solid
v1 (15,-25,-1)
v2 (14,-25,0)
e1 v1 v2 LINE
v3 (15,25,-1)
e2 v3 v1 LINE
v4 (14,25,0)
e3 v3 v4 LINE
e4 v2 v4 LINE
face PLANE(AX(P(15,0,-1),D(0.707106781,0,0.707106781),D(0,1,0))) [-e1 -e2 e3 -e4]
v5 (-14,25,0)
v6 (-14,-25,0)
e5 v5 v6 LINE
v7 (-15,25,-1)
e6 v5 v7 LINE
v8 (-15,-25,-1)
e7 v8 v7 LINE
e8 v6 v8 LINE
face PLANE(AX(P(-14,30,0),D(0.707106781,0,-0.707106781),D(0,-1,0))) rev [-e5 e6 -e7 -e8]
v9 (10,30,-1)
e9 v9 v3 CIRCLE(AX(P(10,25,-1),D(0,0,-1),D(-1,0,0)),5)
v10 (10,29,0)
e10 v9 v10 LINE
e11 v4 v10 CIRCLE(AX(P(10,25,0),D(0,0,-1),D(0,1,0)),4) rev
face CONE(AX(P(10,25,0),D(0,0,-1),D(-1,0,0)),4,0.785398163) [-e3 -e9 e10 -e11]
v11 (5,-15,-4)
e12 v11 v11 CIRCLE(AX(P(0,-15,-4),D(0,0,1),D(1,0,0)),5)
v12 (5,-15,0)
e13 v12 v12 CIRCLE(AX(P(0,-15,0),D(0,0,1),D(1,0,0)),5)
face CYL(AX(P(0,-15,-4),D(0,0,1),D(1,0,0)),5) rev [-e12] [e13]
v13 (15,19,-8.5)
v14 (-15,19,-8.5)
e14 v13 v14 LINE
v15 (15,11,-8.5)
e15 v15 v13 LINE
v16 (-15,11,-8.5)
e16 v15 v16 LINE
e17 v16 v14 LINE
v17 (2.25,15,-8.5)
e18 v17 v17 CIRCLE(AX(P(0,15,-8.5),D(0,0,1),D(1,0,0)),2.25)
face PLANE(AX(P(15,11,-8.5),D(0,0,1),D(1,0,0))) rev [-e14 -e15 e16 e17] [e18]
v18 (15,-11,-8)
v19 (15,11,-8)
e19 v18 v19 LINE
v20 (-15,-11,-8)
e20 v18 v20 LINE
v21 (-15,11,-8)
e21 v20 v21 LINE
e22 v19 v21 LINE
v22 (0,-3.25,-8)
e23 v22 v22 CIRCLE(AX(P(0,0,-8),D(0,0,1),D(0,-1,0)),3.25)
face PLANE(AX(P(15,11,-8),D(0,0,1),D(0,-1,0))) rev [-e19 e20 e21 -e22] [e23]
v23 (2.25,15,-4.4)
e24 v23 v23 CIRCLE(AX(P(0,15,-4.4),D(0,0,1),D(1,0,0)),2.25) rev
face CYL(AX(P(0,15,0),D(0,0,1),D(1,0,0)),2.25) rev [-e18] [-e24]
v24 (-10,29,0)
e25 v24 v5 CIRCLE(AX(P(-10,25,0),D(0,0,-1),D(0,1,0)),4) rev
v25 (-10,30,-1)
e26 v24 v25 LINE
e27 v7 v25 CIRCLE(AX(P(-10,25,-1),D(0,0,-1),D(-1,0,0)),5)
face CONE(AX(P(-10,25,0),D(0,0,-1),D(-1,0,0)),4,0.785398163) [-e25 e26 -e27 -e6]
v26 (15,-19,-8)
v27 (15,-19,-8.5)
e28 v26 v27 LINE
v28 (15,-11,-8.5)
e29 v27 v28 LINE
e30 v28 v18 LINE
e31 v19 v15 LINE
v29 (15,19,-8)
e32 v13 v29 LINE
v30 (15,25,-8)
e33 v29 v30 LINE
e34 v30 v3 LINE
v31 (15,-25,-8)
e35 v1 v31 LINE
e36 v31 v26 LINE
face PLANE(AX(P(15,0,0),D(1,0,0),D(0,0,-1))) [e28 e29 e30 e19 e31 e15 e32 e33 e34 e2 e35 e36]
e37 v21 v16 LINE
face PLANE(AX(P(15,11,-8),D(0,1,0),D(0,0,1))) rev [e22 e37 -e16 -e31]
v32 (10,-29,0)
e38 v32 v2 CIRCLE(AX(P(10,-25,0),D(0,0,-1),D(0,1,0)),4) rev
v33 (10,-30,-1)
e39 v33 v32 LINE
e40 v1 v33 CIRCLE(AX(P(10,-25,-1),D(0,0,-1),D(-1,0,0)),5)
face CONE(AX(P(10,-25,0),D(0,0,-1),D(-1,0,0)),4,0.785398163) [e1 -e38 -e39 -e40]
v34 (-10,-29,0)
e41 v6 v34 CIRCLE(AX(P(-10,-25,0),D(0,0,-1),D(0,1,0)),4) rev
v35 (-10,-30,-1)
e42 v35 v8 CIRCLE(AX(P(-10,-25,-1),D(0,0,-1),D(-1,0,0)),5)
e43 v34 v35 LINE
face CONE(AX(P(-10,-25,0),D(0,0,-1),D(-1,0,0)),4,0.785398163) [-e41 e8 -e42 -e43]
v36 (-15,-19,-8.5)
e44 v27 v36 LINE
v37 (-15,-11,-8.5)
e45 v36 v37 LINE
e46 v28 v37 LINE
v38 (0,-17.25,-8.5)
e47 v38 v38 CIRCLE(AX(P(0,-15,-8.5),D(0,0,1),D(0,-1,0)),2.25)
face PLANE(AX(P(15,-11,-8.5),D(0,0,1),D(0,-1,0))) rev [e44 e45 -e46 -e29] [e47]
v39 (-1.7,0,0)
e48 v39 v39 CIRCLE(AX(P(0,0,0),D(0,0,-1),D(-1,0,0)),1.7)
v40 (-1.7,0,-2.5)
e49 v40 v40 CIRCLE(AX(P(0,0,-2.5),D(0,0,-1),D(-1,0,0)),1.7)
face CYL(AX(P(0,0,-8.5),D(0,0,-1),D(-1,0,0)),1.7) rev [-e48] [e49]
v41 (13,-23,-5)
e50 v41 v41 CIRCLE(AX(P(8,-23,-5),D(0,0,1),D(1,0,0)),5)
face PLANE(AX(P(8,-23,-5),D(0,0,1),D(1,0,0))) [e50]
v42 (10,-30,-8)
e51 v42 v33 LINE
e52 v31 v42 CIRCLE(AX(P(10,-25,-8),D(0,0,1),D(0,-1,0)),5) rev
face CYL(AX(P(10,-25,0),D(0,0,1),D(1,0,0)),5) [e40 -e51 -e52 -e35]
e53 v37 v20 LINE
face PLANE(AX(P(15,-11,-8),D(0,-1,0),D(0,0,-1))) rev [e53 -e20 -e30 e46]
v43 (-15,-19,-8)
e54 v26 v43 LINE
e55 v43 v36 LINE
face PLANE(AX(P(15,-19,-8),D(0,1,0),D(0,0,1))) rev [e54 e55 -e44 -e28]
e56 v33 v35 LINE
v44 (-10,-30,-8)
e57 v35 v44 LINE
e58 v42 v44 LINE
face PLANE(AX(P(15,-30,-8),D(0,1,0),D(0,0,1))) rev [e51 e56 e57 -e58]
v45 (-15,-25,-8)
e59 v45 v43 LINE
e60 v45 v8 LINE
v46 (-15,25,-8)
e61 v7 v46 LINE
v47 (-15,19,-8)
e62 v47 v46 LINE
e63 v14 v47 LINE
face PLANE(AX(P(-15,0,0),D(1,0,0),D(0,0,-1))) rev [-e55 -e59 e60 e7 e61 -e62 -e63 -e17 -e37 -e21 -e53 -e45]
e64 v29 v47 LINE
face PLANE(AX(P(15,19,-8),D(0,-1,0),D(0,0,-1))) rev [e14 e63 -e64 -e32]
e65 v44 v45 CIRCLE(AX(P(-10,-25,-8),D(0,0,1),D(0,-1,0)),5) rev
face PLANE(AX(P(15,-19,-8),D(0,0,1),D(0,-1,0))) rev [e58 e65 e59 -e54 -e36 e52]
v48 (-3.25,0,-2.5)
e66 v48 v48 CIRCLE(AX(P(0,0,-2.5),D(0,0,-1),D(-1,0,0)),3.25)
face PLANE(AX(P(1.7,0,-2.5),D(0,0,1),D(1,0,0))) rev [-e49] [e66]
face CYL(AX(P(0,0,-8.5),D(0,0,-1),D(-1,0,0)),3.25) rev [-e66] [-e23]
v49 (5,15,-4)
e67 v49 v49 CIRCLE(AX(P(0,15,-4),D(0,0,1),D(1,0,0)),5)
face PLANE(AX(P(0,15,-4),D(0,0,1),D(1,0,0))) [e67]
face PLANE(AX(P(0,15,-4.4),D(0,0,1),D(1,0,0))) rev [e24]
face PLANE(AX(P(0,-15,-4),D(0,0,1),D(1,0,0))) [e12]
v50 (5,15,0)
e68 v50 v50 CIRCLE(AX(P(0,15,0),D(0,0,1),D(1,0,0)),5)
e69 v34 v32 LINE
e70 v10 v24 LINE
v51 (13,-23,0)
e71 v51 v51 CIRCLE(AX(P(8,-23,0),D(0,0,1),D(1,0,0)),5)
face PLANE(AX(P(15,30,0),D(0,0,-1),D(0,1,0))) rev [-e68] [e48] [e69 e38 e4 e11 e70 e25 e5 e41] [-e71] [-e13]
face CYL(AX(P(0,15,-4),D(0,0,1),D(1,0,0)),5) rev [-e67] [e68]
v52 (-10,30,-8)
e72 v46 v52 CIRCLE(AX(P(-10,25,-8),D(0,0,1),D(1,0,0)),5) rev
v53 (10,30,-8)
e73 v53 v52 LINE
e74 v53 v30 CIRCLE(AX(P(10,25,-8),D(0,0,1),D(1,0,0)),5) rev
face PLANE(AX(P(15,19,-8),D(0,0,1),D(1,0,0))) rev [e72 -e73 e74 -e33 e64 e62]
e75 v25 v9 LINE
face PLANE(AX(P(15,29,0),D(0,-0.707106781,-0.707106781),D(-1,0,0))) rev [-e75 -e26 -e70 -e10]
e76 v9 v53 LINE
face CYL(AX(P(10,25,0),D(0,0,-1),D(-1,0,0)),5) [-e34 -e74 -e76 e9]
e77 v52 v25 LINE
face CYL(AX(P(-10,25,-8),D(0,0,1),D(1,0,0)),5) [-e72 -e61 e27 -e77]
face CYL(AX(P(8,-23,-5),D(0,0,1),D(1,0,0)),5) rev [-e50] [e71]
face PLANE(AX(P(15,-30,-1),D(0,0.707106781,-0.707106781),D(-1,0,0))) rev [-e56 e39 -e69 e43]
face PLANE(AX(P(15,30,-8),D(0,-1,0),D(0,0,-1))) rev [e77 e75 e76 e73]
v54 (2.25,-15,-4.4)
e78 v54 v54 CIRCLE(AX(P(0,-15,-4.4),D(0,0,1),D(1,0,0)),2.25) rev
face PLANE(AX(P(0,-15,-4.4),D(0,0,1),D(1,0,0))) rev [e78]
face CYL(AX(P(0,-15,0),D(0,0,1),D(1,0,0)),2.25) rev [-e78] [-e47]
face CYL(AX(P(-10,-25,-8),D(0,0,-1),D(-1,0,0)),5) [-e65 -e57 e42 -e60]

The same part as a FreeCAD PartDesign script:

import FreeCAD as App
import Part
import Sketcher

V = App.Vector
Q = App.Units.Quantity


def edges_at(feature, points):
    """Names of the edges that pass closest to the given points."""
    edges = feature.Shape.Edges
    near = lambda p: min(range(len(edges)), key=lambda i: edges[i].distToShape(Part.Vertex(*p))[0])
    return sorted({f"Edge{near(p) + 1}" for p in points})

doc = App.newDocument("Part")
body = doc.addObject("PartDesign::Body", "Body")

# Sketch on YZ plane
sketch1 = doc.addObject("Sketcher::SketchObject", "Sketch")
body.addObject(sketch1)
sketch1.AttachmentSupport = (doc.YZ_Plane, [""])
sketch1.MapMode = "FlatFace"
sketch1.addGeometry(Part.LineSegment(V(-30, -8, 0), V(-19, -8, 0)), False)
sketch1.addGeometry(Part.LineSegment(V(-19, -8, 0), V(-19, -8.5, 0)), False)
sketch1.addGeometry(Part.LineSegment(V(-19, -8.5, 0), V(-11, -8.5, 0)), False)
sketch1.addGeometry(Part.LineSegment(V(-11, -8.5, 0), V(-11, -8, 0)), False)
sketch1.addGeometry(Part.LineSegment(V(-11, -8, 0), V(11, -8, 0)), False)
sketch1.addGeometry(Part.LineSegment(V(11, -8, 0), V(11, -8.5, 0)), False)
sketch1.addGeometry(Part.LineSegment(V(11, -8.5, 0), V(19, -8.5, 0)), False)
sketch1.addGeometry(Part.LineSegment(V(19, -8.5, 0), V(19, -8, 0)), False)
sketch1.addGeometry(Part.LineSegment(V(19, -8, 0), V(30, -8, 0)), False)
sketch1.addGeometry(Part.LineSegment(V(30, -8, 0), V(30, 0, 0)), False)
sketch1.addGeometry(Part.LineSegment(V(30, 0, 0), V(-30, 0, 0)), False)
sketch1.addGeometry(Part.LineSegment(V(-30, 0, 0), V(-30, -8, 0)), False)
sketch1.addConstraint(Sketcher.Constraint("Coincident", 0, 2, 1, 1))
sketch1.addConstraint(Sketcher.Constraint("Coincident", 1, 2, 2, 1))
sketch1.addConstraint(Sketcher.Constraint("Coincident", 2, 2, 3, 1))
sketch1.addConstraint(Sketcher.Constraint("Coincident", 3, 2, 4, 1))
sketch1.addConstraint(Sketcher.Constraint("Coincident", 4, 2, 5, 1))
sketch1.addConstraint(Sketcher.Constraint("Coincident", 5, 2, 6, 1))
sketch1.addConstraint(Sketcher.Constraint("Coincident", 6, 2, 7, 1))
sketch1.addConstraint(Sketcher.Constraint("Coincident", 7, 2, 8, 1))
sketch1.addConstraint(Sketcher.Constraint("Coincident", 8, 2, 9, 1))
sketch1.addConstraint(Sketcher.Constraint("Coincident", 9, 2, 10, 1))
sketch1.addConstraint(Sketcher.Constraint("Coincident", 10, 2, 11, 1))
sketch1.addConstraint(Sketcher.Constraint("Coincident", 11, 2, 0, 1))
sketch1.addConstraint(Sketcher.Constraint("Horizontal", 0))
sketch1.addConstraint(Sketcher.Constraint("Vertical", 1))
sketch1.addConstraint(Sketcher.Constraint("Horizontal", 2))
sketch1.addConstraint(Sketcher.Constraint("Vertical", 3))
sketch1.addConstraint(Sketcher.Constraint("Horizontal", 4))
sketch1.addConstraint(Sketcher.Constraint("Vertical", 5))
sketch1.addConstraint(Sketcher.Constraint("Horizontal", 6))
sketch1.addConstraint(Sketcher.Constraint("Vertical", 7))
sketch1.addConstraint(Sketcher.Constraint("Horizontal", 8))
sketch1.addConstraint(Sketcher.Constraint("Vertical", 9))
sketch1.addConstraint(Sketcher.Constraint("Horizontal", 10))
sketch1.addConstraint(Sketcher.Constraint("Vertical", 11))
sketch1.addConstraint(Sketcher.Constraint("Symmetric", 9, 2, 10, 2, -1, 1))
sketch1.addConstraint(Sketcher.Constraint("Symmetric", 2, 2, 5, 2, -2))
sketch1.addConstraint(Sketcher.Constraint("Symmetric", 0, 2, 7, 2, -2))
sketch1.addConstraint(Sketcher.Constraint("Horizontal", 0, 2, 3, 2))
sketch1.addConstraint(Sketcher.Constraint("Equal", 6, 9))
sketch1.addConstraint(Sketcher.Constraint("DistanceX", 0, 1, 0, 2, Q("11 mm")))
sketch1.addConstraint(Sketcher.Constraint("DistanceX", 2, 1, 2, 2, Q("8 mm")))
sketch1.addConstraint(Sketcher.Constraint("DistanceX", 4, 1, 4, 2, Q("22 mm")))
sketch1.addConstraint(Sketcher.Constraint("DistanceY", 1, 2, 1, 1, Q("0.5 mm")))
pad1 = doc.addObject("PartDesign::Pad", "Pad")
body.addObject(pad1)
pad1.Profile = sketch1
pad1.Length = 30
pad1.Midplane = True

# Sketch on XY plane
sketch2 = doc.addObject("Sketcher::SketchObject", "Sketch001")
body.addObject(sketch2)
sketch2.AttachmentSupport = (doc.XY_Plane, [""])
sketch2.MapMode = "FlatFace"
sketch2.addGeometry(Part.Circle(V(0, -15, 0), V(0, 0, 1), 2.2), False)
sketch2.addGeometry(Part.Circle(V(0, 15, 0), V(0, 0, 1), 2.2), False)
sketch2.addConstraint(Sketcher.Constraint("Equal", 0, 1))
sketch2.addConstraint(Sketcher.Constraint("Symmetric", 0, 3, 1, 3, -1, 1))
sketch2.addConstraint(Sketcher.Constraint("PointOnObject", 0, 3, -2))
sketch2.addConstraint(Sketcher.Constraint("Diameter", 0, Q("4.5 mm")))
sketch2.addConstraint(Sketcher.Constraint("DistanceY", 0, 3, -1, 1, Q("15 mm")))
doc.recompute()
hole = doc.addObject("PartDesign::Hole", "Hole")
body.addObject(hole)
hole.Profile = sketch2
hole.ThreadType = "None"
hole.Diameter = 4.5
hole.DepthType = "Dimension"
hole.Depth = 16
hole.DrillPoint = "Angled"
hole.DrillPointAngle = 118

# Sketch on XY plane
sketch3 = doc.addObject("Sketcher::SketchObject", "Sketch002")
body.addObject(sketch3)
sketch3.AttachmentSupport = (doc.XY_Plane, [""])
sketch3.MapMode = "FlatFace"
sketch3.AttachmentOffset = App.Placement(V(0, 0, -8.5), App.Rotation())
sketch3.addGeometry(Part.Circle(V(0, 0, 0), V(0, 0, 1), 1.7), False)
sketch3.addConstraint(Sketcher.Constraint("Coincident", 0, 3, -1, 1))
sketch3.addConstraint(Sketcher.Constraint("Diameter", 0, Q("3.4 mm")))
doc.recompute()
hole2 = doc.addObject("PartDesign::Hole", "Hole001")
body.addObject(hole2)
hole2.Profile = sketch3
hole2.ThreadType = "None"
hole2.Diameter = 3.4
hole2.DepthType = "ThroughAll"
hole2.HoleCutType = "Counterbore"
hole2.HoleCutDiameter = 6.5
hole2.HoleCutDepth = 6
hole2.Reversed = True
doc.recompute()

fillet = doc.addObject("PartDesign::Fillet", "Fillet")
body.addObject(fillet)
fillet.Base = (hole2, edges_at(hole2, [
    (-15, -30, -4),
    (-15, 30, -4),
    (15, 30, -4),
    (15, -30, -4),
]))
fillet.Radius = 5
doc.recompute()

chamfer = doc.addObject("PartDesign::Chamfer", "Chamfer")
body.addObject(chamfer)
chamfer.Base = (fillet, edges_at(fillet, [
    (0, 30, 0),
    (-15, 0, 0),
    (0, -30, 0),
    (15, 0, 0),
    (-13.536, -28.536, 0),
    (13.536, -28.536, 0),
    (13.536, 28.536, 0),
    (-13.536, 28.536, 0),
]))
chamfer.Size = 1

# Sketch on XY plane
sketch4 = doc.addObject("Sketcher::SketchObject", "Sketch003")
body.addObject(sketch4)
sketch4.AttachmentSupport = (doc.XY_Plane, [""])
sketch4.MapMode = "FlatFace"
sketch4.addGeometry(Part.Circle(V(8, -23, 0), V(0, 0, 1), 5), False)
sketch4.addConstraint(Sketcher.Constraint("Diameter", 0, Q("10 mm")))
sketch4.addConstraint(Sketcher.Constraint("DistanceX", -1, 1, 0, 3, Q("8 mm")))
sketch4.addConstraint(Sketcher.Constraint("DistanceY", 0, 3, -1, 1, Q("23 mm")))
pocket1 = doc.addObject("PartDesign::Pocket", "Pocket")
body.addObject(pocket1)
pocket1.Profile = sketch4
pocket1.Length = 5

# Sketch on XY plane
sketch5 = doc.addObject("Sketcher::SketchObject", "Sketch004")
body.addObject(sketch5)
sketch5.AttachmentSupport = (doc.XY_Plane, [""])
sketch5.MapMode = "FlatFace"
sketch5.addGeometry(Part.Circle(V(0, 15, 0), V(0, 0, 1), 5), False)
sketch5.addGeometry(Part.Circle(V(0, -15, 0), V(0, 0, 1), 5), False)
sketch5.addConstraint(Sketcher.Constraint("Equal", 0, 1))
sketch5.addConstraint(Sketcher.Constraint("Symmetric", 0, 3, 1, 3, -1, 1))
sketch5.addConstraint(Sketcher.Constraint("PointOnObject", 0, 3, -2))
sketch5.addConstraint(Sketcher.Constraint("Diameter", 0, Q("10 mm")))
sketch5.addConstraint(Sketcher.Constraint("DistanceY", -1, 1, 0, 3, Q("15 mm")))
pocket2 = doc.addObject("PartDesign::Pocket", "Pocket001")
body.addObject(pocket2)
pocket2.Profile = sketch5
pocket2.Length = 4

# Sketch on XY plane
sketch6 = doc.addObject("Sketcher::SketchObject", "Sketch005")
body.addObject(sketch6)
sketch6.AttachmentSupport = (doc.XY_Plane, [""])
sketch6.MapMode = "FlatFace"
sketch6.AttachmentOffset = App.Placement(V(0, 0, -4.4), App.Rotation())
sketch6.addGeometry(Part.Circle(V(0, 15, 0), V(0, 0, 1), 2.2), False)
sketch6.addGeometry(Part.Circle(V(0, -15, 0), V(0, 0, 1), 2.2), False)
sketch6.addConstraint(Sketcher.Constraint("Equal", 0, 1))
sketch6.addConstraint(Sketcher.Constraint("Symmetric", 0, 3, 1, 3, -1, 1))
sketch6.addConstraint(Sketcher.Constraint("PointOnObject", 0, 3, -2))
sketch6.addConstraint(Sketcher.Constraint("Diameter", 0, Q("4.5 mm")))
sketch6.addConstraint(Sketcher.Constraint("DistanceY", -1, 1, 0, 3, Q("15 mm")))
pad2 = doc.addObject("PartDesign::Pad", "Pad001")
body.addObject(pad2)
pad2.Profile = sketch6
pad2.Length = 0.4

doc.recompute()
